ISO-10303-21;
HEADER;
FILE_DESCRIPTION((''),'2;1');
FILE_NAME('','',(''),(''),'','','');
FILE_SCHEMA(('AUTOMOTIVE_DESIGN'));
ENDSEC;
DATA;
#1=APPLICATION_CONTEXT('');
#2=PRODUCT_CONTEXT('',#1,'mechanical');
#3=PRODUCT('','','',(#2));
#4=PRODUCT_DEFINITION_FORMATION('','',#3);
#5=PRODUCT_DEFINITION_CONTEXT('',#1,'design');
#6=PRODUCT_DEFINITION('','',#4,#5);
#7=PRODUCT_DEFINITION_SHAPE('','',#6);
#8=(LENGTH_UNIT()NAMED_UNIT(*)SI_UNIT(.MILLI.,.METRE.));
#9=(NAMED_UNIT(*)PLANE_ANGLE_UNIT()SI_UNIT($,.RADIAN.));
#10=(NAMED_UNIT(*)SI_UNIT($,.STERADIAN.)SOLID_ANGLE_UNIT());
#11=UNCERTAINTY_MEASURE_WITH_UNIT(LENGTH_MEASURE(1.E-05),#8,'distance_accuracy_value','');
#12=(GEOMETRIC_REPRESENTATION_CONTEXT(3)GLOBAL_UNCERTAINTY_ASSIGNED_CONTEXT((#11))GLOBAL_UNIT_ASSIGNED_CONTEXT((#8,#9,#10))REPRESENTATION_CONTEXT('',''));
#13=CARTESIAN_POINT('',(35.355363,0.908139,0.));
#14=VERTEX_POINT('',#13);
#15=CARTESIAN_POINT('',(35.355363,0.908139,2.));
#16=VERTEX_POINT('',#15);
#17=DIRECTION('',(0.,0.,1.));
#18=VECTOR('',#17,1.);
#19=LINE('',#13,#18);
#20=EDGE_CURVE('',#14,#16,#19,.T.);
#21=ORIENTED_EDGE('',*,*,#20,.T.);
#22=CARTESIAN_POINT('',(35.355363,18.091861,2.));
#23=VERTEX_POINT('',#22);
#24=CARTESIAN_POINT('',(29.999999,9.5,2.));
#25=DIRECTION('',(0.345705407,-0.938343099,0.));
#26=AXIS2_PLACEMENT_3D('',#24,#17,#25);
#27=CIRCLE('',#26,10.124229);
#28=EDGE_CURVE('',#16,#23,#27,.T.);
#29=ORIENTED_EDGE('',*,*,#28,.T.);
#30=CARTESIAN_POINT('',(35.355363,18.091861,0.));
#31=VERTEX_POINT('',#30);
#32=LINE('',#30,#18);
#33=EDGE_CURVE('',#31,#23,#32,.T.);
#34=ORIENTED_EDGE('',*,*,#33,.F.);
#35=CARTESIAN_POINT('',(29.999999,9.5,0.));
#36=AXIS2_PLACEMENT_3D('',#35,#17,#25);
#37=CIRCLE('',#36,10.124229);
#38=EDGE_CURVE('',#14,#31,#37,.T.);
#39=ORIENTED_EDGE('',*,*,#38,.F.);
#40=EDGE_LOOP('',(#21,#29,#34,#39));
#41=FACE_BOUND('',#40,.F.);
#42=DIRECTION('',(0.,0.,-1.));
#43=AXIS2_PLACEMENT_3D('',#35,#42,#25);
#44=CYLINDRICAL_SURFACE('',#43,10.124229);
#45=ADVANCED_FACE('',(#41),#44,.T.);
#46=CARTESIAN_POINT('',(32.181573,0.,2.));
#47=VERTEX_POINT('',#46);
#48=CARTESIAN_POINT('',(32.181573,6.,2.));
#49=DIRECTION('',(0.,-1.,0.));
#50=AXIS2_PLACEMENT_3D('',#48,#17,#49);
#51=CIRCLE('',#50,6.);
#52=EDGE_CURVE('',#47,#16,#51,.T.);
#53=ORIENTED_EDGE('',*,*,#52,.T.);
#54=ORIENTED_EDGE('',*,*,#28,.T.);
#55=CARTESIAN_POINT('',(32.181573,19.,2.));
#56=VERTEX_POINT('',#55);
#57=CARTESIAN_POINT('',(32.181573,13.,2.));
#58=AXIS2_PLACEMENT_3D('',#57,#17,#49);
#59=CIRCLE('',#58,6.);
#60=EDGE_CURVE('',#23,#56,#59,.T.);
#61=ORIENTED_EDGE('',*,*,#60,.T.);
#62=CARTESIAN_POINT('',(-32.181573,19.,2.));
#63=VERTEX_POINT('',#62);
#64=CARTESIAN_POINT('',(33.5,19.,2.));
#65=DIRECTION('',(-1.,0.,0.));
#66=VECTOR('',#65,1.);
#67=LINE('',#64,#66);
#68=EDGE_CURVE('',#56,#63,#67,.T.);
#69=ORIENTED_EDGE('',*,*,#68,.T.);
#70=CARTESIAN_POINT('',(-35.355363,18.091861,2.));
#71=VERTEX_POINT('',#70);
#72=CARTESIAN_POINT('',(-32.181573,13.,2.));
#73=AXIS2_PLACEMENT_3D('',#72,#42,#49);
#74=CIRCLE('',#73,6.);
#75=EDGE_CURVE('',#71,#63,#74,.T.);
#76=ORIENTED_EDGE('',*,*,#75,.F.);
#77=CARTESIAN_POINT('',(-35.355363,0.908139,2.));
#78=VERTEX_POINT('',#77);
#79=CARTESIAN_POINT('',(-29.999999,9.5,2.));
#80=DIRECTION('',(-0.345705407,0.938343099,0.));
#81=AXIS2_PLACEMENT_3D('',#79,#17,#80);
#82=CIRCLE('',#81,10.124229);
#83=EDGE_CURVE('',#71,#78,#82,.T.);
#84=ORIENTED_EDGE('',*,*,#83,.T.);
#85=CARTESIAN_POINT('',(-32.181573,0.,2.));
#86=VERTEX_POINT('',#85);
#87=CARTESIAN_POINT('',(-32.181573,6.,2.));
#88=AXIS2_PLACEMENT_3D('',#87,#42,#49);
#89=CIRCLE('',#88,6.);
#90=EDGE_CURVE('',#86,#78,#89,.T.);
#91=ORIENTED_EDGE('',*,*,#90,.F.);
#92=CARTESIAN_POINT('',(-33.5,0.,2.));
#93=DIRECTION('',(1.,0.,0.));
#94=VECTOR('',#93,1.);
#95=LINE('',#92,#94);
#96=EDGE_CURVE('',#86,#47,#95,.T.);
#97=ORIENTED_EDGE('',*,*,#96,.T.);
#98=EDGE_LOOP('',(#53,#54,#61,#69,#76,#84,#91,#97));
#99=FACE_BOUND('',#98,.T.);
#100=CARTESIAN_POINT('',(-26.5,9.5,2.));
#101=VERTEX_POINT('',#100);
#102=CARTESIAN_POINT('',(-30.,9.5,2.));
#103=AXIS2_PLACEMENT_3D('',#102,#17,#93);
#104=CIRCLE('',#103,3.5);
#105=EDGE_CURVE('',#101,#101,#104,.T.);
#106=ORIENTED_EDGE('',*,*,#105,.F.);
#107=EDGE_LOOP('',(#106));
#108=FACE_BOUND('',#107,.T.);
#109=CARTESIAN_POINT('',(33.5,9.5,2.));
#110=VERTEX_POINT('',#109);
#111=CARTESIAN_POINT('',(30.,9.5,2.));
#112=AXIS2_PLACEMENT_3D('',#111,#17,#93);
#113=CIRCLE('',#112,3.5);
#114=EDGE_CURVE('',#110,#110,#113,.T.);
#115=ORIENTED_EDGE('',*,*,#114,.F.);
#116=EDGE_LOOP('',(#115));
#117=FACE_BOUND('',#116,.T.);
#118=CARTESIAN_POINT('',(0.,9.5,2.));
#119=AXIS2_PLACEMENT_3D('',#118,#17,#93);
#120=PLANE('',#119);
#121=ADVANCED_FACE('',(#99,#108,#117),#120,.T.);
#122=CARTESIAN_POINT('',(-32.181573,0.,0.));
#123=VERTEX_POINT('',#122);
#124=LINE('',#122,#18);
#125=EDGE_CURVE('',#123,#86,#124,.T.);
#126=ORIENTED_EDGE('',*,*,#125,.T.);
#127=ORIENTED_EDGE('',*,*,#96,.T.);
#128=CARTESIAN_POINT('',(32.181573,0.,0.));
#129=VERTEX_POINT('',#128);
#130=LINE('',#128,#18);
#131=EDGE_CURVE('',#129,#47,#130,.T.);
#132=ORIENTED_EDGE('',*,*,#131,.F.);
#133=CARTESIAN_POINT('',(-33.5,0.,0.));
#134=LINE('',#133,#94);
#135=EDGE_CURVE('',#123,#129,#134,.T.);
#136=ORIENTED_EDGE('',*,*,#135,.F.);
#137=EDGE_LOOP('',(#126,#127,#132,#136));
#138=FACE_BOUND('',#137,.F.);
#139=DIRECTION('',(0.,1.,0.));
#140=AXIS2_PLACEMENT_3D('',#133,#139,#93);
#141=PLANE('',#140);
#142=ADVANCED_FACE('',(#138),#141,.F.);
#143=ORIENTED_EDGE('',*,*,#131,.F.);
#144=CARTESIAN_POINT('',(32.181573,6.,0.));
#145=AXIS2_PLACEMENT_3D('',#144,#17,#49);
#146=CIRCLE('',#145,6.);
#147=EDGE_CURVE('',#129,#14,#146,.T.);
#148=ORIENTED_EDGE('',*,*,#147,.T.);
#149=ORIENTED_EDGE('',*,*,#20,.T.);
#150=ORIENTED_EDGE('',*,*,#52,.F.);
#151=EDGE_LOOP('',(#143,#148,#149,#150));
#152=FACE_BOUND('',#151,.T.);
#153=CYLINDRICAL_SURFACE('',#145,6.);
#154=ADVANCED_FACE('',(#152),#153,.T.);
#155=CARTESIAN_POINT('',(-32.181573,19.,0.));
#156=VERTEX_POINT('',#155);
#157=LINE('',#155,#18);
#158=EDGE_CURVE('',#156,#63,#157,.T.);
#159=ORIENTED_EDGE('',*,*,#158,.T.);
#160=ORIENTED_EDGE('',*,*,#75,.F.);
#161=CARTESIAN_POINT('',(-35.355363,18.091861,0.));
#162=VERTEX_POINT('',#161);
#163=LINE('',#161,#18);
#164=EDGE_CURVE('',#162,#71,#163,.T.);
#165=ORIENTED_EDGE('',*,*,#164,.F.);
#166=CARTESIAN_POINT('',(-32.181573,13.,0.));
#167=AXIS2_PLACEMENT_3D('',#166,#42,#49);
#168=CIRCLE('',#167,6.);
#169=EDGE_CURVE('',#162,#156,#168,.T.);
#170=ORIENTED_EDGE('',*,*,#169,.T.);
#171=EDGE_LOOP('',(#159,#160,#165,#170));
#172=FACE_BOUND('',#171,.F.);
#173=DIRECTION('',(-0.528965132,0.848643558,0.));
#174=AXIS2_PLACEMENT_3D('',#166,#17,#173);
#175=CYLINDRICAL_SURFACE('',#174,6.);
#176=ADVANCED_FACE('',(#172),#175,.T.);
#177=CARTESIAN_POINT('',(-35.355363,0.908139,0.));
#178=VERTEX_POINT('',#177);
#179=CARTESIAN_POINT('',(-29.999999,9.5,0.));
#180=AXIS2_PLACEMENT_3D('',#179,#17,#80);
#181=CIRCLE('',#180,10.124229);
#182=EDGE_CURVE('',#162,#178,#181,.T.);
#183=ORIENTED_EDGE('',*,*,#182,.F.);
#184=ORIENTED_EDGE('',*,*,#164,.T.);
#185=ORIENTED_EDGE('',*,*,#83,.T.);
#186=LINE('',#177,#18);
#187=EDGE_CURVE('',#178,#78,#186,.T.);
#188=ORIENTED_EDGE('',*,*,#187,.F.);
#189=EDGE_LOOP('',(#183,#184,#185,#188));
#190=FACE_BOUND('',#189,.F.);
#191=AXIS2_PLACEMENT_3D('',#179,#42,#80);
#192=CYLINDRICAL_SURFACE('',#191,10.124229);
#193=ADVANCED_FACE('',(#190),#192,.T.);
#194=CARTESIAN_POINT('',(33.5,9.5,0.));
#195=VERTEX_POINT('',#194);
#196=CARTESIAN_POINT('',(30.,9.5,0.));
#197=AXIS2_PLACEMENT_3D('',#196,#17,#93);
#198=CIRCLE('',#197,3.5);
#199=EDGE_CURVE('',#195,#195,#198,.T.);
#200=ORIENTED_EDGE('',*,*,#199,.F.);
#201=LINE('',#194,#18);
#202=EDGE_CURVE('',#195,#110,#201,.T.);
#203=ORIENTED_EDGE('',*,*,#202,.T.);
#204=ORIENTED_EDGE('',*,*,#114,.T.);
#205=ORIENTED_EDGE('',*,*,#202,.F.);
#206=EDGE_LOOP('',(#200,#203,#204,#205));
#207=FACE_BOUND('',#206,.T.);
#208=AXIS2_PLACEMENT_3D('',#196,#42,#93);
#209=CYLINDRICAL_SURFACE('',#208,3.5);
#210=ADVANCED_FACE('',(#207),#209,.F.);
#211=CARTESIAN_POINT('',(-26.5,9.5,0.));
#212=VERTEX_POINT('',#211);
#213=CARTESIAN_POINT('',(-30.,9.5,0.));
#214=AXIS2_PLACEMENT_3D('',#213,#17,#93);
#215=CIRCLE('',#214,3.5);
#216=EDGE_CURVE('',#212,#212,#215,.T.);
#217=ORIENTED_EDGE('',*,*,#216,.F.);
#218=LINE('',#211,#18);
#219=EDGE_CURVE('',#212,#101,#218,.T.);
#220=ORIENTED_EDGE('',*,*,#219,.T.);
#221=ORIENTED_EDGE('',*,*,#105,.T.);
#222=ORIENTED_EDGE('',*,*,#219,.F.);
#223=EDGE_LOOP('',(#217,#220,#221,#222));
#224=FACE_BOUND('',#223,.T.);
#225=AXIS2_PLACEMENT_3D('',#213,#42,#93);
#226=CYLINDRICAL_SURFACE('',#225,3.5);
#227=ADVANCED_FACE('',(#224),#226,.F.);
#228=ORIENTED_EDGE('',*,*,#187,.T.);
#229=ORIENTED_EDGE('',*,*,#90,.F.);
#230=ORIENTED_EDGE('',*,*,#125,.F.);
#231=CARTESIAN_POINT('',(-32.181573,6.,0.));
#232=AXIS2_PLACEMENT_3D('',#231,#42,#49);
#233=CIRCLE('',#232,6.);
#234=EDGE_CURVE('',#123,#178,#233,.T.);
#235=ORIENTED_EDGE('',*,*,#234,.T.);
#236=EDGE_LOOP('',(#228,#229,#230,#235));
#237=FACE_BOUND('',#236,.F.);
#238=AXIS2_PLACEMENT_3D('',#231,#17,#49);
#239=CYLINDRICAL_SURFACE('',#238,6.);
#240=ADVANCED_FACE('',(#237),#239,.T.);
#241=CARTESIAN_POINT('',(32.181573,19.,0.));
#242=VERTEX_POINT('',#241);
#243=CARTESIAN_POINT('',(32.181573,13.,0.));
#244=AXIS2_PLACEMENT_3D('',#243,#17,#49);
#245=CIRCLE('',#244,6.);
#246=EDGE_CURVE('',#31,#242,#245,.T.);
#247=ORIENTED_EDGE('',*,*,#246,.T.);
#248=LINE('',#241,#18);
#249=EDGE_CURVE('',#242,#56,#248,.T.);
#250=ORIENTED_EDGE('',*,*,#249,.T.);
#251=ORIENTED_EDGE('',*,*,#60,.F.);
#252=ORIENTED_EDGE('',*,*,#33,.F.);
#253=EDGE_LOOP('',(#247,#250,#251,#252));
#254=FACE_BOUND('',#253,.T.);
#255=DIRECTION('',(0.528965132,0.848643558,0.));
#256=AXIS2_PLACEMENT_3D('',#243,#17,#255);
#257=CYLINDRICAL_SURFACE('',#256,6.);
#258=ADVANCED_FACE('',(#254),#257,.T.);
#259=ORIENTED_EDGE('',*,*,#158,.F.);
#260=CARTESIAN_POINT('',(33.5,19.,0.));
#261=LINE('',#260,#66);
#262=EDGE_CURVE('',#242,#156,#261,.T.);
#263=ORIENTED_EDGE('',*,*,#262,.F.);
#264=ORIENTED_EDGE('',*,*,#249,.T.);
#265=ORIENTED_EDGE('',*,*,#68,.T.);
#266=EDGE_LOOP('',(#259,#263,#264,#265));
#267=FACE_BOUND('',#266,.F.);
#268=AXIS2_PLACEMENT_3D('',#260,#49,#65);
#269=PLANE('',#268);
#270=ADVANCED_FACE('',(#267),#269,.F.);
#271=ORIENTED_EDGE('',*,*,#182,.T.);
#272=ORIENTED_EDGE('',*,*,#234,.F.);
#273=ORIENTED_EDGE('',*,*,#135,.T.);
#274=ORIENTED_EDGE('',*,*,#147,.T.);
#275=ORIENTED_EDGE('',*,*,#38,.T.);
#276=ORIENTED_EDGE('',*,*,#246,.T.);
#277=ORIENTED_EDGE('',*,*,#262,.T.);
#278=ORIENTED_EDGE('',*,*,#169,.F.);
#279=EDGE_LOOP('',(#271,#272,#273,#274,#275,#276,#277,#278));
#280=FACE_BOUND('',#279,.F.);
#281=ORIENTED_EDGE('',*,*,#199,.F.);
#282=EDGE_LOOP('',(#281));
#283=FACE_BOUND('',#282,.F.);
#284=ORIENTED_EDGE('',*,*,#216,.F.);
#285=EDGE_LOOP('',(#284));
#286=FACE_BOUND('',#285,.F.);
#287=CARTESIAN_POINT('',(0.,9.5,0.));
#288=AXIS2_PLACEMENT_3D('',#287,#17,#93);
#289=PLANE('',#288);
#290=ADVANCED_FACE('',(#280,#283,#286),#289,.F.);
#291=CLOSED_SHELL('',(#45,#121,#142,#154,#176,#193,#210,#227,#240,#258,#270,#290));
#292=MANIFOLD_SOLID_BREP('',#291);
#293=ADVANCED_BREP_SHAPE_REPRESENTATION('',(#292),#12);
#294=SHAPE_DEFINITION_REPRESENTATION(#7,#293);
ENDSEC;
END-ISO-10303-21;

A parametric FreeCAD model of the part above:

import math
import FreeCAD as App
import Part
import Sketcher
from FreeCAD import Vector
Q = App.Units.Quantity


def edges_at(feature, points):
    """Names of the edges that pass closest to the given points."""
    edges = feature.Shape.Edges
    near = lambda p: min(range(len(edges)), key=lambda i: edges[i].distToShape(Part.Vertex(*p))[0])
    return sorted({f"Edge{near(p) + 1}" for p in points})

doc = App.newDocument("Part")
body = doc.addObject("PartDesign::Body", "Body")

sketch1 = body.newObject("Sketcher::SketchObject", "Sketch")
sketch1.AttachmentSupport = (doc.getObject("XY_Plane"), [""])
sketch1.MapMode = "FlatFace"
sketch1.addGeometry([
    Part.LineSegment(Vector(-33.5, 0, 0), Vector(33.5, 0, 0)),
    Part.ArcOfCircle(Part.Circle(Vector(30, 9.5, 0), Vector(0, 0, 1), 10.1), math.radians(-70), math.radians(70)),
    Part.LineSegment(Vector(33.5, 19, 0), Vector(-33.5, 19, 0)),
    Part.ArcOfCircle(Part.Circle(Vector(-30, 9.5, 0), Vector(0, 0, 1), 10.1), math.radians(110), math.radians(250)),
    Part.Circle(Vector(-30, 9.5, 0), Vector(0, 0, 1), 3.5),
    Part.Circle(Vector(30, 9.5, 0), Vector(0, 0, 1), 3.5),
], False)
sketch1.addConstraint([
    Sketcher.Constraint("Coincident", 0, 2, 1, 1),
    Sketcher.Constraint("Coincident", 1, 2, 2, 1),
    Sketcher.Constraint("Coincident", 2, 2, 3, 1),
    Sketcher.Constraint("Coincident", 3, 2, 0, 1),
    Sketcher.Constraint("Horizontal", 0),
    Sketcher.Constraint("Horizontal", 2),
    Sketcher.Constraint("Coincident", 4, 3, 3, 3),
    Sketcher.Constraint("Coincident", 5, 3, 1, 3),
    Sketcher.Constraint("Equal", 1, 3),
    Sketcher.Constraint("Equal", 4, 5),
    Sketcher.Constraint("Symmetric", 0, 2, 3, 2, -1, 1),
    Sketcher.Constraint("Horizontal", 1, 3, 3, 3),
    Sketcher.Constraint("Vertical", 0, 2, 1, 2),
    Sketcher.Constraint("Diameter", 4, Q("7 mm")),
    Sketcher.Constraint("DistanceX", 0, 1, 0, 2, Q("67 mm")),
    Sketcher.Constraint("DistanceX", -1, 1, 1, 3, Q("29.999999 mm")),
    Sketcher.Constraint("DistanceY", -1, 1, 1, 2, Q("19 mm")),
])
pad1 = body.newObject("PartDesign::Pad", "Pad")
pad1.Profile = sketch1
pad1.Length = 2
doc.recompute()

fillet = body.newObject("PartDesign::Fillet", "Fillet")
fillet.Base = (pad1, edges_at(pad1, [
    (-33.5, 0, 1),
    (-33.5, 19, 1),
    (33.5, 19, 1),
    (33.5, 0, 1),
]))
fillet.Radius = 6

doc.recompute()
